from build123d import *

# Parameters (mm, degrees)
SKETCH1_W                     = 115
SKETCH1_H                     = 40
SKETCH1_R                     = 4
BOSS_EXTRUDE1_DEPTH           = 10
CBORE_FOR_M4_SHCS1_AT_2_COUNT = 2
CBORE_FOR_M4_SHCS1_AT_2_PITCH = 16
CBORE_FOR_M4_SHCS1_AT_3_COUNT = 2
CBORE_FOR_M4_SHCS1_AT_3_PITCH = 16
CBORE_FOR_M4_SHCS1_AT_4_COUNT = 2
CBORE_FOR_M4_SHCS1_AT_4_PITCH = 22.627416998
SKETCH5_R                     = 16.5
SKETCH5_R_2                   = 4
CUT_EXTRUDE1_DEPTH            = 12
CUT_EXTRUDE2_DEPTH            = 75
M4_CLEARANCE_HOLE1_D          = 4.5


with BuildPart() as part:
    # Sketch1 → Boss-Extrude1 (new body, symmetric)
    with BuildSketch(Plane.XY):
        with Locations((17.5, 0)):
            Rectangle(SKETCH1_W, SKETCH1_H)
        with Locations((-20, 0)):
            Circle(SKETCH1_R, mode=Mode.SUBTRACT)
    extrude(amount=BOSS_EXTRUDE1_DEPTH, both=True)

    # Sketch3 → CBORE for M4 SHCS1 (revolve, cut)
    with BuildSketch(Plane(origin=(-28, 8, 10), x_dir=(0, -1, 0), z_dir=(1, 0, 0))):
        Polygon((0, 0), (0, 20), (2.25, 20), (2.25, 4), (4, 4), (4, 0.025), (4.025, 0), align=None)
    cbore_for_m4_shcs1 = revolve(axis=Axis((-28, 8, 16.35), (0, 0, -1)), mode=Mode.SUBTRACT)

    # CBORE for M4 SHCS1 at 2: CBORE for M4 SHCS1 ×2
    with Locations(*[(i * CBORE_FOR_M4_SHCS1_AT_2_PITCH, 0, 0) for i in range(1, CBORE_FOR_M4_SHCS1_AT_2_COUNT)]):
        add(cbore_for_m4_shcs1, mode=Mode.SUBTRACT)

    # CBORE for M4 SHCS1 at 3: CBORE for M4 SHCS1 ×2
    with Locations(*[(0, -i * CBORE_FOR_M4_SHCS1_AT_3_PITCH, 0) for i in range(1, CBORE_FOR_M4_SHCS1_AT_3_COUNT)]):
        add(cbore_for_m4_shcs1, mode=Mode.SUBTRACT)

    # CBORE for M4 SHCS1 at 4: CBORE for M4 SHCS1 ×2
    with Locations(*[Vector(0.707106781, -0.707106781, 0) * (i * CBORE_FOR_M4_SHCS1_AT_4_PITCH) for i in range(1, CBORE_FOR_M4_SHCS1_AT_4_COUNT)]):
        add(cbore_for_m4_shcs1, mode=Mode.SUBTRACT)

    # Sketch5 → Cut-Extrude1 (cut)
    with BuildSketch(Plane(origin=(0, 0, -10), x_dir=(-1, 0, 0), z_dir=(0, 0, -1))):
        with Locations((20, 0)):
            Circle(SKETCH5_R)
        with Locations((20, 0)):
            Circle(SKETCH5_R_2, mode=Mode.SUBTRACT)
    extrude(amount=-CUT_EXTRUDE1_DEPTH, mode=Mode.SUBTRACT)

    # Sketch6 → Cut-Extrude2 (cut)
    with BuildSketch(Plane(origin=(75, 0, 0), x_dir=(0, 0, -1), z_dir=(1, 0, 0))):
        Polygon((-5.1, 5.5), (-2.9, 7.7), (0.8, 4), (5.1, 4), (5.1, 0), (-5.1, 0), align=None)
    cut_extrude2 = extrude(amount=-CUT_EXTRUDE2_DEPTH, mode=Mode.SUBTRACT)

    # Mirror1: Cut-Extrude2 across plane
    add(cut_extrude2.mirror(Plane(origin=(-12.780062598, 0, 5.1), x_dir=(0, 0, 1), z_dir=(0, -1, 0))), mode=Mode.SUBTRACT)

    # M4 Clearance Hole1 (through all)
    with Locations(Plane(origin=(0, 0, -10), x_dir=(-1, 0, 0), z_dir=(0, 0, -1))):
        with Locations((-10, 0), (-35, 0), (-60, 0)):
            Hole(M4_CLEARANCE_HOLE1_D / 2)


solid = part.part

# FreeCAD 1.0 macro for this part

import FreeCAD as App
import Part
import Sketcher
from FreeCAD import Vector
Q = App.Units.Quantity


def add_polygon(sketch, points):
    """Adds a closed chain of lines whose ends are joined by coincident constraints."""
    first, n = sketch.GeometryCount, len(points)
    for a, b in zip(points, points[1:] + points[:1]):
        sketch.addGeometry(Part.LineSegment(App.Vector(*a, 0), App.Vector(*b, 0)), False)
    for i in range(n):
        sketch.addConstraint(Sketcher.Constraint("Coincident", first + i, 2, first + (i + 1) % n, 1))

doc = App.newDocument("Part")
body = doc.addObject("PartDesign::Body", "Body")

sketch1 = body.newObject("Sketcher::SketchObject", "Sketch")
sketch1.AttachmentSupport = (doc.getObject("XY_Plane"), [""])
sketch1.MapMode = "FlatFace"
add_polygon(sketch1, [(-40, 20), (-40, -20), (75, -20), (75, 20)])
sketch1.addGeometry(Part.Circle(Vector(-20, 0, 0), Vector(0, 0, 1), 4), False)
sketch1.addConstraint(Sketcher.Constraint("Vertical", 0))
sketch1.addConstraint(Sketcher.Constraint("Horizontal", 1))
sketch1.addConstraint(Sketcher.Constraint("Vertical", 2))
sketch1.addConstraint(Sketcher.Constraint("Horizontal", 3))
sketch1.addConstraint(Sketcher.Constraint("PointOnObject", 4, 3, -1))
sketch1.addConstraint(Sketcher.Constraint("Diameter", 4, 8.0))
sketch1.addConstraint(Sketcher.Constraint("DistanceX", 1, 1, 1, 2, 115.0))
sketch1.addConstraint(Sketcher.Constraint("DistanceY", 0, 2, 0, 1, 40.0))
sketch1.addConstraint(Sketcher.Constraint("DistanceX", 4, 3, -1, 1, 20.0))
sketch1.addConstraint(Sketcher.Constraint("DistanceX", 0, 2, -1, 1, 40.0))
sketch1.addConstraint(Sketcher.Constraint("DistanceY", 0, 2, -1, 1, 20.0))
pad1 = body.newObject("PartDesign::Pad", "Pad")
pad1.Profile = sketch1
pad1.Length = 20
pad1.Midplane = True

sketch2 = body.newObject("Sketcher::SketchObject", "Sketch001")
sketch2.AttachmentSupport = (doc.getObject("YZ_Plane"), [""])
sketch2.MapMode = "FlatFace"
sketch2.AttachmentOffset = App.Placement(Vector(0, 0, -28), App.Rotation())
add_polygon(sketch2, [(8, -10), (8, 10), (3.975, 10), (4, 9.975), (4, 6), (5.75, 6), (5.75, -10)])
sketch2.addGeometry(Part.LineSegment(Vector(8, 10, 0), Vector(8, -10, 0)), True)
sketch2.addConstraint(Sketcher.Constraint("Vertical", 0))
sketch2.addConstraint(Sketcher.Constraint("Horizontal", 1))
sketch2.addConstraint(Sketcher.Constraint("Vertical", 3))
sketch2.addConstraint(Sketcher.Constraint("Horizontal", 4))
sketch2.addConstraint(Sketcher.Constraint("Vertical", 5))
sketch2.addConstraint(Sketcher.Constraint("Horizontal", 6))
sketch2.addConstraint(Sketcher.Constraint("Vertical", 7))
sketch2.addConstraint(Sketcher.Constraint("Coincident", 7, 1, 0, 2))
sketch2.addConstraint(Sketcher.Constraint("Horizontal", 5, 2, 7, 2))
sketch2.addConstraint(Sketcher.Constraint("DistanceY", 0, 1, 0, 2, 20.0))
sketch2.addConstraint(Sketcher.Constraint("DistanceY", 5, 2, 5, 1, 16.0))
sketch2.addConstraint(Sketcher.Constraint("Angle", 2, Q("-45 deg")))
sketch2.addConstraint(Sketcher.Constraint("DistanceX", -1, 1, 0, 2, 8.0))
sketch2.addConstraint(Sketcher.Constraint("DistanceY", -1, 1, 0, 2, 10.0))
sketch2.addConstraint(Sketcher.Constraint("DistanceX", -1, 1, 2, 2, 4.0))
sketch2.addConstraint(Sketcher.Constraint("DistanceX", 4, 1, 4, 2, 1.75))
sketch2.addConstraint(Sketcher.Constraint("DistanceX", 1, 2, 1, 1, 4.025))
groove = body.newObject("PartDesign::Groove", "Groove")
groove.Profile = sketch2
groove.ReferenceAxis = (sketch2, ["Axis0"])
groove.Angle = 360
doc.recompute()

linearpattern = body.newObject("PartDesign::LinearPattern", "LinearPattern")
linearpattern.Originals = [groove]
linearpattern.Direction = (doc.getObject("X_Axis"), [""])
linearpattern.Mode = "offset"
linearpattern.Offset = 16
linearpattern.Occurrences = 2
body.Tip = linearpattern
doc.recompute()

linearpattern2 = body.newObject("PartDesign::LinearPattern", "LinearPattern001")
linearpattern2.Originals = [groove]
linearpattern2.Direction = (doc.getObject("Y_Axis"), [""])
linearpattern2.Mode = "offset"
linearpattern2.Offset = 16
linearpattern2.Occurrences = 2
linearpattern2.Reversed = True
body.Tip = linearpattern2
doc.recompute()

datumline = body.newObject("PartDesign::Line", "DatumLine")
datumline.Placement = App.Placement(Vector(0, 0, 0), App.Rotation(Vector(0, 0, 1), Vector(0.707106781, -0.707106781, 0)))
linearpattern3 = body.newObject("PartDesign::LinearPattern", "LinearPattern002")
linearpattern3.Originals = [groove]
linearpattern3.Direction = (datumline, [""])
linearpattern3.Mode = "offset"
linearpattern3.Offset = 22.627417
linearpattern3.Occurrences = 2
body.Tip = linearpattern3

sketch3 = body.newObject("Sketcher::SketchObject", "Sketch002")
sketch3.AttachmentSupport = (doc.getObject("XY_Plane"), [""])
sketch3.MapMode = "FlatFace"
sketch3.AttachmentOffset = App.Placement(Vector(0, 0, -10), App.Rotation())
sketch3.addGeometry(Part.Circle(Vector(-20, 0, 0), Vector(0, 0, 1), 16.5), False)
sketch3.addGeometry(Part.Circle(Vector(-20, 0, 0), Vector(0, 0, 1), 4), False)
sketch3.addConstraint(Sketcher.Constraint("Coincident", 1, 3, 0, 3))
sketch3.addConstraint(Sketcher.Constraint("PointOnObject", 0, 3, -1))
sketch3.addConstraint(Sketcher.Constraint("Diameter", 0, 33.0))
sketch3.addConstraint(Sketcher.Constraint("Diameter", 1, 8.0))
sketch3.addConstraint(Sketcher.Constraint("DistanceX", 0, 3, -1, 1, 20.0))
pocket1 = body.newObject("PartDesign::Pocket", "Pocket")
pocket1.Profile = sketch3
pocket1.Length = 12
pocket1.Reversed = True

sketch4 = body.newObject("Sketcher::SketchObject", "Sketch003")
sketch4.AttachmentSupport = (doc.getObject("YZ_Plane"), [""])
sketch4.MapMode = "FlatFace"
sketch4.AttachmentOffset = App.Placement(Vector(0, 0, 75), App.Rotation())
add_polygon(sketch4, [(7.7, 2.9), (5.5, 5.1), (0, 5.1), (0, -5.1), (4, -5.1), (4, -0.8)])
sketch4.addConstraint(Sketcher.Constraint("Horizontal", 1))
sketch4.addConstraint(Sketcher.Constraint("Vertical", 2))
sketch4.addConstraint(Sketcher.Constraint("Horizontal", 3))
sketch4.addConstraint(Sketcher.Constraint("Vertical", 4))
sketch4.addConstraint(Sketcher.Constraint("Symmetric", 1, 2, 2, 2, -1, 1))
sketch4.addConstraint(Sketcher.Constraint("Perpendicular", 0, 5))
sketch4.addConstraint(Sketcher.Constraint("DistanceX", 3, 1, 3, 2, 4.0))
sketch4.addConstraint(Sketcher.Constraint("Angle", 0, Q("135 deg")))
sketch4.addConstraint(Sketcher.Constraint("DistanceX", 1, 2, 1, 1, 5.5))
sketch4.addConstraint(Sketcher.Constraint("DistanceY", 2, 2, 2, 1, 10.2))
sketch4.addConstraint(Sketcher.Constraint("DistanceY", 4, 1, 4, 2, 4.3))
pocket2 = body.newObject("PartDesign::Pocket", "Pocket001")
pocket2.Profile = sketch4
pocket2.Length = 75
doc.recompute()

mirrored = body.newObject("PartDesign::Mirrored", "Mirrored")
mirrored.Originals = [pocket2]
mirrored.MirrorPlane = (doc.getObject("XZ_Plane"), [""])
body.Tip = mirrored

sketch5 = body.newObject("Sketcher::SketchObject", "Sketch004")
sketch5.AttachmentSupport = (doc.getObject("XY_Plane"), [""])
sketch5.MapMode = "FlatFace"
sketch5.AttachmentOffset = App.Placement(Vector(0, 0, -10), App.Rotation())
sketch5.addGeometry(Part.Circle(Vector(10, 0, 0), Vector(0, 0, 1), 2.2), False)
sketch5.addGeometry(Part.Circle(Vector(35, 0, 0), Vector(0, 0, 1), 2.2), False)
sketch5.addGeometry(Part.Circle(Vector(60, 0, 0), Vector(0, 0, 1), 2.2), False)
sketch5.addConstraint(Sketcher.Constraint("Equal", 0, 1))
sketch5.addConstraint(Sketcher.Constraint("Equal", 1, 2))
sketch5.addConstraint(Sketcher.Constraint("PointOnObject", 0, 3, -1))
sketch5.addConstraint(Sketcher.Constraint("PointOnObject", 1, 3, -1))
sketch5.addConstraint(Sketcher.Constraint("PointOnObject", 2, 3, -1))
sketch5.addConstraint(Sketcher.Constraint("Diameter", 0, 4.5))
sketch5.addConstraint(Sketcher.Constraint("DistanceX", -1, 1, 0, 3, 10.0))
sketch5.addConstraint(Sketcher.Constraint("DistanceX", -1, 1, 1, 3, 35.0))
sketch5.addConstraint(Sketcher.Constraint("DistanceX", -1, 1, 2, 3, 60.0))
doc.recompute()
hole = body.newObject("PartDesign::Hole", "Hole")
hole.Profile = sketch5
hole.ThreadType = "None"
hole.Diameter = 4.5
hole.DepthType = "ThroughAll"
hole.Reversed = True

doc.recompute()
